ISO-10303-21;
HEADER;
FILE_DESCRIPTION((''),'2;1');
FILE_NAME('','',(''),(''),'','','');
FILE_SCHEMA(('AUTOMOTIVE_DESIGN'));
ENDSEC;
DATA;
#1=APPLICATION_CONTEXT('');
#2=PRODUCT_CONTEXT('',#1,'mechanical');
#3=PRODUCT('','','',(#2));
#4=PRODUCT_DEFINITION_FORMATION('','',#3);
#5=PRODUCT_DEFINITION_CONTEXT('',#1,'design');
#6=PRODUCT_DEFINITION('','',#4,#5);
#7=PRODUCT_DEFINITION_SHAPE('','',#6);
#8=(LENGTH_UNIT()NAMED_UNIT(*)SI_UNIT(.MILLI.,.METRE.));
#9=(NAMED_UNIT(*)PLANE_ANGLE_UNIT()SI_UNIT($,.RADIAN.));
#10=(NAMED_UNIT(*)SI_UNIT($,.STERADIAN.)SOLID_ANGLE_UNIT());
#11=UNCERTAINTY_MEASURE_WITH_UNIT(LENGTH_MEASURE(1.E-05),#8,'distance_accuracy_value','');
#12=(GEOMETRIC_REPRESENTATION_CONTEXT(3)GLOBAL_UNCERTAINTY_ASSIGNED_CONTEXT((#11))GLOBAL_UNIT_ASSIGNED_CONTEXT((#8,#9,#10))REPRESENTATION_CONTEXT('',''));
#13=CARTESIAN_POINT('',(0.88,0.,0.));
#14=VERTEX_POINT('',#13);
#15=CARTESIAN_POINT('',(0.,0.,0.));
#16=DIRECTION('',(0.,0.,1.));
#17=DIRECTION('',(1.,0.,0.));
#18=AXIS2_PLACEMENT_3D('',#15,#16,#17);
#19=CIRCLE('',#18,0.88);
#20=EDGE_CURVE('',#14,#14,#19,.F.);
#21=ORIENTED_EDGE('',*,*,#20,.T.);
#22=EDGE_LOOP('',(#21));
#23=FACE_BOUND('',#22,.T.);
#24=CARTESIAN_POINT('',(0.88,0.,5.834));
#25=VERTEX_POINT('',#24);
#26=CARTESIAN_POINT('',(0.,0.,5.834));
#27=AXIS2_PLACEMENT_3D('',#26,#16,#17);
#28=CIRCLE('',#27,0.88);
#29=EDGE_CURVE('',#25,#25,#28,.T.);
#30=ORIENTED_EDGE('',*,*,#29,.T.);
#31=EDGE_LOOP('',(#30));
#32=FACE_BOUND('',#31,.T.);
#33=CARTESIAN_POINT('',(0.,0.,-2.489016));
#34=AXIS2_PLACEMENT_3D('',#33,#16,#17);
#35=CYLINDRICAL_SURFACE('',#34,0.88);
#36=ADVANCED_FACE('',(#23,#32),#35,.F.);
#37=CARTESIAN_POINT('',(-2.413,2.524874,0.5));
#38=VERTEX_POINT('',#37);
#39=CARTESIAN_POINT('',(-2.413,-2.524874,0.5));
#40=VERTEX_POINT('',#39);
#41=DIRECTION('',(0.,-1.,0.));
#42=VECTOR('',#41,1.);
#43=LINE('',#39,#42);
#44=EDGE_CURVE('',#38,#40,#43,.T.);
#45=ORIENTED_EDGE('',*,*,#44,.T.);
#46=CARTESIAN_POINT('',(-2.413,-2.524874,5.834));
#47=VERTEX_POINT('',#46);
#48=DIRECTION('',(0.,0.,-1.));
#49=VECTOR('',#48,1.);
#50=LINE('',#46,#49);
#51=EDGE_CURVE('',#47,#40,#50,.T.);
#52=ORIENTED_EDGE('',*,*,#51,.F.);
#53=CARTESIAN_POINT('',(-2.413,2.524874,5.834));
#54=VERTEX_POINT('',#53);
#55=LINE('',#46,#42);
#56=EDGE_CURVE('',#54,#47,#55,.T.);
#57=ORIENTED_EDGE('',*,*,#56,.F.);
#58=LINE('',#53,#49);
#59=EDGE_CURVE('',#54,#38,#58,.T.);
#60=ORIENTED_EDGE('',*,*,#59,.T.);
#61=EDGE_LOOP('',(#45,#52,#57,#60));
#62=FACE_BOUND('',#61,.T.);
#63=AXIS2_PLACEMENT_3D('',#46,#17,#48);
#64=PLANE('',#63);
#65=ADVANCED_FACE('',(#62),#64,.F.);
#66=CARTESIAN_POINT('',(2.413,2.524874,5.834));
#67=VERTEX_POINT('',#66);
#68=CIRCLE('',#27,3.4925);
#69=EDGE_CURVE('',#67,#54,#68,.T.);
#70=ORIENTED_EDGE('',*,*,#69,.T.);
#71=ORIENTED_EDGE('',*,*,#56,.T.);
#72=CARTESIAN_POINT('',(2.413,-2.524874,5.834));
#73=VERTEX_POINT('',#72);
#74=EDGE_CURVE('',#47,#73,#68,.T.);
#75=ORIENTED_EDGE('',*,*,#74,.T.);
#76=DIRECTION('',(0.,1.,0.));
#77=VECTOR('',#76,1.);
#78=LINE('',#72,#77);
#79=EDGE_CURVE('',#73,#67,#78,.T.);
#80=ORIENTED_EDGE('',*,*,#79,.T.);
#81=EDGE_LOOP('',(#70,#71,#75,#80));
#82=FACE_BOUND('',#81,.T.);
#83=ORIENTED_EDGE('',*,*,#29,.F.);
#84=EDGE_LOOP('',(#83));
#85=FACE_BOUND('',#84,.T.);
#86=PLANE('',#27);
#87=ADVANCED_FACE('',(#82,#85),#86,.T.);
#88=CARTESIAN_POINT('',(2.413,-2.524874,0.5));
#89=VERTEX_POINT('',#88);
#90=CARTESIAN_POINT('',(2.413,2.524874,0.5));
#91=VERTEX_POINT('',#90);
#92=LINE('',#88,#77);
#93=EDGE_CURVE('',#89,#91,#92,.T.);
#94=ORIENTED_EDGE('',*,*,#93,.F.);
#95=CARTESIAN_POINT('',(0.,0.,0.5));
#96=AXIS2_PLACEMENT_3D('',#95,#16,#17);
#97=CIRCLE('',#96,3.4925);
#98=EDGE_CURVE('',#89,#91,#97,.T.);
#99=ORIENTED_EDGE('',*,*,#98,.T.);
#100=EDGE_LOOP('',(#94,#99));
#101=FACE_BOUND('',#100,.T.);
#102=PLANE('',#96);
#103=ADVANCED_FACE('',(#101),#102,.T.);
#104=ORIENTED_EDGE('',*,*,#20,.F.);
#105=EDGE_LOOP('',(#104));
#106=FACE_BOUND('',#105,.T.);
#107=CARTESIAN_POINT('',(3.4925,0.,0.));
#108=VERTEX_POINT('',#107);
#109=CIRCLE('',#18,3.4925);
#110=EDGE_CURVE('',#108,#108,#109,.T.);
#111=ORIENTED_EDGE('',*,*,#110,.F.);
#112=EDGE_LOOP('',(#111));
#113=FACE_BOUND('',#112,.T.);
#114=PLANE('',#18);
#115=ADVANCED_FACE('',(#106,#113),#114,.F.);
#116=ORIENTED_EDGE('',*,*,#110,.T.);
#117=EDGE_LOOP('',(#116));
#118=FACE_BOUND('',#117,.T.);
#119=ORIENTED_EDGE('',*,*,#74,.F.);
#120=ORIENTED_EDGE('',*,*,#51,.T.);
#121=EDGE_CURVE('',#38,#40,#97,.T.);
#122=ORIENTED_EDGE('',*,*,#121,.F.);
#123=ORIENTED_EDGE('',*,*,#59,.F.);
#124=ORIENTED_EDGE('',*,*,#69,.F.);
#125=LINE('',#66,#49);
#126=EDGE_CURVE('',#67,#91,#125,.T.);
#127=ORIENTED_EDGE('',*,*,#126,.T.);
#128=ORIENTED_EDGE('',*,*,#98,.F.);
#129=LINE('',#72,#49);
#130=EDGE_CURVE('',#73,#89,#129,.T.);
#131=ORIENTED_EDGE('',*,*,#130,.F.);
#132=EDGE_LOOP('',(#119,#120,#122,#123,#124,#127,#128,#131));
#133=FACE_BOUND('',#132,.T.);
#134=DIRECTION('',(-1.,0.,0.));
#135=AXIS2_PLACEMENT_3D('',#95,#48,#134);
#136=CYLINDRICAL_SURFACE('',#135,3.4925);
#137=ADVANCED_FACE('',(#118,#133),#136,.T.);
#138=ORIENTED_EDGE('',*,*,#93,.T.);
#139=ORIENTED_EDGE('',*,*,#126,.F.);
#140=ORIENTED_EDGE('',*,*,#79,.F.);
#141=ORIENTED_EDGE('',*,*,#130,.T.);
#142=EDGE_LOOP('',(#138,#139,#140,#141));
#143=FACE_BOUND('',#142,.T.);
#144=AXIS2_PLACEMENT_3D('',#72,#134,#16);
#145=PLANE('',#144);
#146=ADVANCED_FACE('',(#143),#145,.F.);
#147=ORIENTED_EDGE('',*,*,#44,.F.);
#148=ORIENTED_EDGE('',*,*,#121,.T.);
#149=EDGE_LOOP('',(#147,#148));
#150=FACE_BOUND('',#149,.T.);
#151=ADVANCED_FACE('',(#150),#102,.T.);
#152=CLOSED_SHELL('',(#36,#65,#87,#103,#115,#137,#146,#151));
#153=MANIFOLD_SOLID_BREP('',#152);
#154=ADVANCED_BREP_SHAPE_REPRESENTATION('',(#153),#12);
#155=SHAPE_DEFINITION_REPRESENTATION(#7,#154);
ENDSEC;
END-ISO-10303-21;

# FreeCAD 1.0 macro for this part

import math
import FreeCAD as App
import Part
import Sketcher
from FreeCAD import Vector
Q = App.Units.Quantity

doc = App.newDocument("Part")
body = doc.addObject("PartDesign::Body", "Body")

# Sketch on XY plane
sketch1 = body.newObject("Sketcher::SketchObject", "Sketch")
sketch1.AttachmentSupport = (doc.getObject("XY_Plane"), [""])
sketch1.MapMode = "FlatFace"
sketch1.addGeometry(Part.Circle(Vector(0, 0, 0), Vector(0, 0, 1), 3.4925), False)
sketch1.addConstraint([
    Sketcher.Constraint("Coincident", 0, 3, -1, 1),
    Sketcher.Constraint("Diameter", 0, Q("0.275 in")),
])
pad1 = body.newObject("PartDesign::Pad", "Pad")
pad1.Profile = sketch1
pad1.Length = 0.5

# Sketch on XY plane
sketch2 = body.newObject("Sketcher::SketchObject", "Sketch001")
sketch2.AttachmentSupport = (doc.getObject("XY_Plane"), [""])
sketch2.MapMode = "FlatFace"
sketch2.AttachmentOffset = App.Placement(Vector(0, 0, 0.5), App.Rotation())
sketch2.addGeometry([
    Part.LineSegment(Vector(2.413, -2.524874, 0), Vector(2.413, 2.524874, 0)),
    Part.ArcOfCircle(Part.Circle(Vector(0, 0, 0), Vector(0, 0, 1), 3.4925), math.radians(46.297886), math.radians(133.702114)),
    Part.LineSegment(Vector(-2.413, 2.524874, 0), Vector(-2.413, -2.524874, 0)),
    Part.ArcOfCircle(Part.Circle(Vector(0, 0, 0), Vector(0, 0, 1), 3.4925), math.radians(-133.702114), math.radians(-46.297886)),
], False)
sketch2.addConstraint([
    Sketcher.Constraint("Coincident", 0, 2, 1, 1),
    Sketcher.Constraint("Coincident", 1, 2, 2, 1),
    Sketcher.Constraint("Coincident", 2, 2, 3, 1),
    Sketcher.Constraint("Coincident", 3, 2, 0, 1),
    Sketcher.Constraint("Vertical", 0),
    Sketcher.Constraint("Vertical", 2),
    Sketcher.Constraint("Coincident", 1, 3, -1, 1),
    Sketcher.Constraint("Coincident", 3, 3, -1, 1),
    Sketcher.Constraint("Equal", 1, 3),
    Sketcher.Constraint("Horizontal", 0, 2, 1, 2),
    Sketcher.Constraint("Radius", 1, Q("0.1375 in")),
    Sketcher.Constraint("DistanceX", 1, 2, 0, 2, Q("0.19 in")),
])
pad2 = body.newObject("PartDesign::Pad", "Pad001")
pad2.Profile = sketch2
pad2.Length = Q("0.21 in")

# Sketch on XY plane
sketch3 = body.newObject("Sketcher::SketchObject", "Sketch002")
sketch3.AttachmentSupport = (doc.getObject("XY_Plane"), [""])
sketch3.MapMode = "FlatFace"
sketch3.AttachmentOffset = App.Placement(Vector(0, 0, 5.834), App.Rotation())
sketch3.addGeometry(Part.Circle(Vector(0, 0, 0), Vector(0, 0, 1), 0.88), False)
sketch3.addConstraint([
    Sketcher.Constraint("Coincident", 0, 3, -1, 1),
    Sketcher.Constraint("Diameter", 0, 1.76),
])
pocket1 = body.newObject("PartDesign::Pocket", "Pocket")
pocket1.Profile = sketch3
pocket1.Type = "UpToFirst"

doc.recompute()
